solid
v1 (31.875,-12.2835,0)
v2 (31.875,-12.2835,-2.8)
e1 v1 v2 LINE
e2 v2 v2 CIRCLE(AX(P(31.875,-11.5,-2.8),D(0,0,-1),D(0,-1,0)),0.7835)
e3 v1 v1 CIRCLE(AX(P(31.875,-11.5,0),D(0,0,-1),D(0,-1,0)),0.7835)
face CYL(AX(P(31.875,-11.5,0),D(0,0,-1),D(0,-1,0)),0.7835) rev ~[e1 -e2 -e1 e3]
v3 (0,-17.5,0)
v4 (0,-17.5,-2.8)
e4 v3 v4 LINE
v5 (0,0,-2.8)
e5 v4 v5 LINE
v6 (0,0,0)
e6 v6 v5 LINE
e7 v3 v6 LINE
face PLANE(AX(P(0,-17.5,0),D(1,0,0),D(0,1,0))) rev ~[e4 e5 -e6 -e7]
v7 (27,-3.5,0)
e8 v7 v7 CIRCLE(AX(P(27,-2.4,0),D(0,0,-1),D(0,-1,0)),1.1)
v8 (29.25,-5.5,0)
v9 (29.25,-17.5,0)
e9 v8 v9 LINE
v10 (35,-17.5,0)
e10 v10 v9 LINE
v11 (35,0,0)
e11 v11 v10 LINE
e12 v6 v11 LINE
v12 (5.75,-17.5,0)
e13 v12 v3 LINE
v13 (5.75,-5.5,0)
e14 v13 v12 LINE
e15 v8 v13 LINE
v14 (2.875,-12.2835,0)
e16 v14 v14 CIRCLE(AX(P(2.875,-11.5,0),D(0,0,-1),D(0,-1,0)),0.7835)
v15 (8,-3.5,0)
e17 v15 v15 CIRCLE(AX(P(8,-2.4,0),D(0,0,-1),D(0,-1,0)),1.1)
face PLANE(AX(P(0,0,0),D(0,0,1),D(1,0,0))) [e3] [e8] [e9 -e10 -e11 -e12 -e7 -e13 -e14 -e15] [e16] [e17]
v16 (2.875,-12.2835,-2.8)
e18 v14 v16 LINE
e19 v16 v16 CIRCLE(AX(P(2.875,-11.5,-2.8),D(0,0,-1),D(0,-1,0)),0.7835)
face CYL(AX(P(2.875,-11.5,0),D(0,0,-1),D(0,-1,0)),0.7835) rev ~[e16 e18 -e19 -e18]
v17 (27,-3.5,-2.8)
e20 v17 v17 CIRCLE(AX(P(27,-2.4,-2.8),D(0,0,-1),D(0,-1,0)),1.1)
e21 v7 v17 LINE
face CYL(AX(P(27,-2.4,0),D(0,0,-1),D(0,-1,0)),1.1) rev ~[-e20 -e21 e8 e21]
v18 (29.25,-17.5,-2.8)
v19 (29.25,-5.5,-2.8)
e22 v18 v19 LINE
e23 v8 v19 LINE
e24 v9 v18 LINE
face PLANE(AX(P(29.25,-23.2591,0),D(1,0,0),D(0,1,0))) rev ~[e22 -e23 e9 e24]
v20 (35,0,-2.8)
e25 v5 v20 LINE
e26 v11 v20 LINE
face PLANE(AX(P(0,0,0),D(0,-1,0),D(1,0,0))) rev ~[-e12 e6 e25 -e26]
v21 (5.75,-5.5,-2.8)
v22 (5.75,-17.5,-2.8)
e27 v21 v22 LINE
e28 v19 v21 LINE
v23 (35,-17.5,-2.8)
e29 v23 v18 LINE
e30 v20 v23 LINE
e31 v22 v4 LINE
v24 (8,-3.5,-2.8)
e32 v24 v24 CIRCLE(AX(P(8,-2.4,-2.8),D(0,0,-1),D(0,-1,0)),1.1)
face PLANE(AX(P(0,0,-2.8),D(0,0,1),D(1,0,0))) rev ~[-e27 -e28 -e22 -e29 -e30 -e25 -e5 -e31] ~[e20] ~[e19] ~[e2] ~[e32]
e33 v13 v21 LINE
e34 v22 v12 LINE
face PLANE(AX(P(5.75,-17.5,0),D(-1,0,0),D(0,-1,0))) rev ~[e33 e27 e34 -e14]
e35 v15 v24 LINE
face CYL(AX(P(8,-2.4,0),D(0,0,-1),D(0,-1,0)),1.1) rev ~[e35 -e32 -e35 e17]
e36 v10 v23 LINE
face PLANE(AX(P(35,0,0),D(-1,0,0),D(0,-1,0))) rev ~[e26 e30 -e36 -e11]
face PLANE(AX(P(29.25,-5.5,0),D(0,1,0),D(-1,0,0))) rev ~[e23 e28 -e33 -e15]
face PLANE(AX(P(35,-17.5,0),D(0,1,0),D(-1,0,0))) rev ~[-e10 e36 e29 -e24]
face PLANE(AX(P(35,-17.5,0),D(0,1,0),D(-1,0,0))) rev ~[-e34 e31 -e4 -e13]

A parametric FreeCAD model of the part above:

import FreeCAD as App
import Part
import Sketcher
from FreeCAD import Vector


def add_polygon(sketch, points):
    """Adds a closed chain of lines whose ends are joined by coincident constraints."""
    first, n = sketch.GeometryCount, len(points)
    for a, b in zip(points, points[1:] + points[:1]):
        sketch.addGeometry(Part.LineSegment(App.Vector(*a, 0), App.Vector(*b, 0)), False)
    for i in range(n):
        sketch.addConstraint(Sketcher.Constraint("Coincident", first + i, 2, first + (i + 1) % n, 1))

doc = App.newDocument("Part")
params = doc.addObject("Spreadsheet::Sheet", "Params")
for row, (alias, value) in enumerate([
    ("sketch1_width", "35 mm"),
    ("sketch1_height", "17.5 mm"),
    ("pad1_length", "2.8 mm"),
    ("sketch2_width", "23.5 mm"),
    ("sketch3_diameter", "2.2 mm"),
    ("hole_diameter", "2.2 mm"),
    ("hole2_diameter", "1.567 mm"),
], start=1):
    params.set(f"A{row}", alias)
    params.set(f"B{row}", "=" + value)
    params.setAlias(f"B{row}", alias)

body = doc.addObject("PartDesign::Body", "Body")

# Sketch on XY plane
sketch1 = body.newObject("Sketcher::SketchObject", "Sketch")
sketch1.AttachmentSupport = (doc.getObject("XY_Plane"), [""])
sketch1.MapMode = "FlatFace"
add_polygon(sketch1, [(35, 0), (0, 0), (0, -18), (35, -18)])  # lines 0-3
sketch1.addConstraint(Sketcher.Constraint("Horizontal", 0))
sketch1.addConstraint(Sketcher.Constraint("Vertical", 1))
sketch1.addConstraint(Sketcher.Constraint("Horizontal", 2))
sketch1.addConstraint(Sketcher.Constraint("Vertical", 3))
sketch1.addConstraint(Sketcher.Constraint("Coincident", 0, 2, -1, 1))
sketch1.addConstraint(Sketcher.Constraint("DistanceX", 0, 2, 0, 1, 35.0))
sketch1.addConstraint(Sketcher.Constraint("DistanceY", 1, 2, 1, 1, 17.5))
sketch1.setExpression("Constraints[9]", "Params.sketch1_width")
sketch1.setExpression("Constraints[10]", "Params.sketch1_height")
pad1 = body.newObject("PartDesign::Pad", "Pad")
pad1.Profile = sketch1
pad1.setExpression("Length", "Params.pad1_length")
pad1.Reversed = True

# Sketch on XY plane
sketch2 = body.newObject("Sketcher::SketchObject", "Sketch001")
sketch2.AttachmentSupport = (doc.getObject("XY_Plane"), [""])
sketch2.MapMode = "FlatFace"
add_polygon(sketch2, [(29, -23), (29, -6), (6, -6), (6, -23)])  # lines 0-3
sketch2.addConstraint(Sketcher.Constraint("Vertical", 0))
sketch2.addConstraint(Sketcher.Constraint("Horizontal", 1))
sketch2.addConstraint(Sketcher.Constraint("Vertical", 2))
sketch2.addConstraint(Sketcher.Constraint("Horizontal", 3))
sketch2.addConstraint(Sketcher.Constraint("DistanceX", 1, 2, 1, 1, 23.5))
sketch2.addConstraint(Sketcher.Constraint("DistanceY", 0, 2, -1, 1, 5.5))
sketch2.addConstraint(Sketcher.Constraint("DistanceY", 0, 1, 0, 2, 17.759))
sketch2.addConstraint(Sketcher.Constraint("DistanceX", -1, 1, 0, 2, 29.25))
sketch2.setExpression("Constraints[8]", "Params.sketch2_width")
pocket1 = body.newObject("PartDesign::Pocket", "Pocket")
pocket1.Profile = sketch2
pocket1.Type = "ThroughAll"

# Sketch on XY plane
sketch3 = body.newObject("Sketcher::SketchObject", "Sketch002")
sketch3.AttachmentSupport = (doc.getObject("XY_Plane"), [""])
sketch3.MapMode = "FlatFace"
sketch3.addGeometry(Part.Circle(Vector(8, -2.4, 0), Vector(0, 0, 1), 1.1), False)
sketch3.addGeometry(Part.Circle(Vector(27, -2.4, 0), Vector(0, 0, 1), 1.1), False)
sketch3.addConstraint(Sketcher.Constraint("Equal", 0, 1))
sketch3.addConstraint(Sketcher.Constraint("Horizontal", 0, 3, 1, 3))
sketch3.addConstraint(Sketcher.Constraint("Diameter", 0, 2.2))
sketch3.addConstraint(Sketcher.Constraint("DistanceX", -1, 1, 0, 3, 8.0))
sketch3.addConstraint(Sketcher.Constraint("DistanceX", -1, 1, 1, 3, 27.0))
sketch3.addConstraint(Sketcher.Constraint("DistanceY", 0, 3, -1, 1, 2.4))
sketch3.setExpression("Constraints[2]", "Params.sketch3_diameter")
doc.recompute()
hole = body.newObject("PartDesign::Hole", "Hole")
hole.Profile = sketch3
hole.ThreadType = "None"
hole.setExpression("Diameter", "Params.hole_diameter")
hole.DepthType = "ThroughAll"

# Sketch on XY plane
sketch4 = body.newObject("Sketcher::SketchObject", "Sketch003")
sketch4.AttachmentSupport = (doc.getObject("XY_Plane"), [""])
sketch4.MapMode = "FlatFace"
sketch4.addGeometry(Part.Circle(Vector(2.9, -11.5, 0), Vector(0, 0, 1), 0.8), False)
sketch4.addGeometry(Part.Circle(Vector(31.9, -11.5, 0), Vector(0, 0, 1), 0.8), False)
sketch4.addConstraint(Sketcher.Constraint("Equal", 0, 1))
sketch4.addConstraint(Sketcher.Constraint("Horizontal", 0, 3, 1, 3))
sketch4.addConstraint(Sketcher.Constraint("Diameter", 0, 1.567))
sketch4.addConstraint(Sketcher.Constraint("DistanceX", 0, 3, 1, 3, 29.0))
sketch4.addConstraint(Sketcher.Constraint("DistanceY", 0, 3, -1, 1, 11.5))
sketch4.addConstraint(Sketcher.Constraint("DistanceX", -1, 1, 0, 3, 2.875))
doc.recompute()
hole2 = body.newObject("PartDesign::Hole", "Hole001")
hole2.Profile = sketch4
hole2.ThreadType = "None"
hole2.setExpression("Diameter", "Params.hole2_diameter")
hole2.DepthType = "ThroughAll"

doc.recompute()
